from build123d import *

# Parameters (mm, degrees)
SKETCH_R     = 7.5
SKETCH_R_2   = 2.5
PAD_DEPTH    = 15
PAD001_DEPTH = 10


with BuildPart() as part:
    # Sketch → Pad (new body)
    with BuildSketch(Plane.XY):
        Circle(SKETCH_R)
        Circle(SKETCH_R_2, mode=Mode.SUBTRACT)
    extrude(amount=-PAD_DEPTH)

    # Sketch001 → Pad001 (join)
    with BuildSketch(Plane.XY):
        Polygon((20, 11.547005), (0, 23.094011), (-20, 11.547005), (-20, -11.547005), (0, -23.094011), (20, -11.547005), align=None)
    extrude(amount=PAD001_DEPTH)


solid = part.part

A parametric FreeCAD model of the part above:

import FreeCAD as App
import Part
import Sketcher

V = App.Vector
Q = App.Units.Quantity

doc = App.newDocument("Part")
body = doc.addObject("PartDesign::Body", "Body")

sketch1 = body.newObject("Sketcher::SketchObject", "Sketch")
sketch1.AttachmentSupport = (doc.getObject("XY_Plane"), [""])
sketch1.MapMode = "FlatFace"
sketch1.addGeometry([
    Part.Circle(V(0, 0, 0), V(0, 0, 1), 7.5),
    Part.Circle(V(0, 0, 0), V(0, 0, 1), 2.5),
], False)
sketch1.addConstraint([
    Sketcher.Constraint("Coincident", 0, 3, -1, 1),
    Sketcher.Constraint("Coincident", 1, 3, -1, 1),
    Sketcher.Constraint("Diameter", 0, Q("15 mm")),
    Sketcher.Constraint("Diameter", 1, Q("5 mm")),
])
pad1 = body.newObject("PartDesign::Pad", "Pad")
pad1.Profile = sketch1
pad1.Length = 15
pad1.Reversed = True

sketch2 = body.newObject("Sketcher::SketchObject", "Sketch001")
sketch2.AttachmentSupport = (doc.getObject("XY_Plane"), [""])
sketch2.MapMode = "FlatFace"
sketch2.addGeometry([
    Part.LineSegment(V(20, 11.547005, 0), V(0, 23.094011, 0)),
    Part.LineSegment(V(0, 23.094011, 0), V(-20, 11.547005, 0)),
    Part.LineSegment(V(-20, 11.547005, 0), V(-20, -11.547005, 0)),
    Part.LineSegment(V(-20, -11.547005, 0), V(0, -23.094011, 0)),
    Part.LineSegment(V(0, -23.094011, 0), V(20, -11.547005, 0)),
    Part.LineSegment(V(20, -11.547005, 0), V(20, 11.547005, 0)),
], False)
sketch2.addConstraint([
    Sketcher.Constraint("Coincident", 0, 2, 1, 1),
    Sketcher.Constraint("Coincident", 1, 2, 2, 1),
    Sketcher.Constraint("Coincident", 2, 2, 3, 1),
    Sketcher.Constraint("Coincident", 3, 2, 4, 1),
    Sketcher.Constraint("Coincident", 4, 2, 5, 1),
    Sketcher.Constraint("Coincident", 5, 2, 0, 1),
    Sketcher.Constraint("Vertical", 2),
    Sketcher.Constraint("Vertical", 5),
    Sketcher.Constraint("Symmetric", 0, 2, 3, 2, -1, 1),
    Sketcher.Constraint("Symmetric", 1, 2, 4, 2, -1, 1),
    Sketcher.Constraint("PointOnObject", 0, 2, -2),
    Sketcher.Constraint("Parallel", 0, 3),
    Sketcher.Constraint("Horizontal", 2, 2, 4, 2),
    Sketcher.Constraint("Angle", 0, Q("149.999999 deg")),
    Sketcher.Constraint("DistanceX", 1, 2, -1, 1, Q("20 mm")),
    Sketcher.Constraint("DistanceY", 2, 2, 2, 1, Q("23.09401 mm")),
])
pad2 = body.newObject("PartDesign::Pad", "Pad001")
pad2.Profile = sketch2
pad2.Length = 10

doc.recompute()
